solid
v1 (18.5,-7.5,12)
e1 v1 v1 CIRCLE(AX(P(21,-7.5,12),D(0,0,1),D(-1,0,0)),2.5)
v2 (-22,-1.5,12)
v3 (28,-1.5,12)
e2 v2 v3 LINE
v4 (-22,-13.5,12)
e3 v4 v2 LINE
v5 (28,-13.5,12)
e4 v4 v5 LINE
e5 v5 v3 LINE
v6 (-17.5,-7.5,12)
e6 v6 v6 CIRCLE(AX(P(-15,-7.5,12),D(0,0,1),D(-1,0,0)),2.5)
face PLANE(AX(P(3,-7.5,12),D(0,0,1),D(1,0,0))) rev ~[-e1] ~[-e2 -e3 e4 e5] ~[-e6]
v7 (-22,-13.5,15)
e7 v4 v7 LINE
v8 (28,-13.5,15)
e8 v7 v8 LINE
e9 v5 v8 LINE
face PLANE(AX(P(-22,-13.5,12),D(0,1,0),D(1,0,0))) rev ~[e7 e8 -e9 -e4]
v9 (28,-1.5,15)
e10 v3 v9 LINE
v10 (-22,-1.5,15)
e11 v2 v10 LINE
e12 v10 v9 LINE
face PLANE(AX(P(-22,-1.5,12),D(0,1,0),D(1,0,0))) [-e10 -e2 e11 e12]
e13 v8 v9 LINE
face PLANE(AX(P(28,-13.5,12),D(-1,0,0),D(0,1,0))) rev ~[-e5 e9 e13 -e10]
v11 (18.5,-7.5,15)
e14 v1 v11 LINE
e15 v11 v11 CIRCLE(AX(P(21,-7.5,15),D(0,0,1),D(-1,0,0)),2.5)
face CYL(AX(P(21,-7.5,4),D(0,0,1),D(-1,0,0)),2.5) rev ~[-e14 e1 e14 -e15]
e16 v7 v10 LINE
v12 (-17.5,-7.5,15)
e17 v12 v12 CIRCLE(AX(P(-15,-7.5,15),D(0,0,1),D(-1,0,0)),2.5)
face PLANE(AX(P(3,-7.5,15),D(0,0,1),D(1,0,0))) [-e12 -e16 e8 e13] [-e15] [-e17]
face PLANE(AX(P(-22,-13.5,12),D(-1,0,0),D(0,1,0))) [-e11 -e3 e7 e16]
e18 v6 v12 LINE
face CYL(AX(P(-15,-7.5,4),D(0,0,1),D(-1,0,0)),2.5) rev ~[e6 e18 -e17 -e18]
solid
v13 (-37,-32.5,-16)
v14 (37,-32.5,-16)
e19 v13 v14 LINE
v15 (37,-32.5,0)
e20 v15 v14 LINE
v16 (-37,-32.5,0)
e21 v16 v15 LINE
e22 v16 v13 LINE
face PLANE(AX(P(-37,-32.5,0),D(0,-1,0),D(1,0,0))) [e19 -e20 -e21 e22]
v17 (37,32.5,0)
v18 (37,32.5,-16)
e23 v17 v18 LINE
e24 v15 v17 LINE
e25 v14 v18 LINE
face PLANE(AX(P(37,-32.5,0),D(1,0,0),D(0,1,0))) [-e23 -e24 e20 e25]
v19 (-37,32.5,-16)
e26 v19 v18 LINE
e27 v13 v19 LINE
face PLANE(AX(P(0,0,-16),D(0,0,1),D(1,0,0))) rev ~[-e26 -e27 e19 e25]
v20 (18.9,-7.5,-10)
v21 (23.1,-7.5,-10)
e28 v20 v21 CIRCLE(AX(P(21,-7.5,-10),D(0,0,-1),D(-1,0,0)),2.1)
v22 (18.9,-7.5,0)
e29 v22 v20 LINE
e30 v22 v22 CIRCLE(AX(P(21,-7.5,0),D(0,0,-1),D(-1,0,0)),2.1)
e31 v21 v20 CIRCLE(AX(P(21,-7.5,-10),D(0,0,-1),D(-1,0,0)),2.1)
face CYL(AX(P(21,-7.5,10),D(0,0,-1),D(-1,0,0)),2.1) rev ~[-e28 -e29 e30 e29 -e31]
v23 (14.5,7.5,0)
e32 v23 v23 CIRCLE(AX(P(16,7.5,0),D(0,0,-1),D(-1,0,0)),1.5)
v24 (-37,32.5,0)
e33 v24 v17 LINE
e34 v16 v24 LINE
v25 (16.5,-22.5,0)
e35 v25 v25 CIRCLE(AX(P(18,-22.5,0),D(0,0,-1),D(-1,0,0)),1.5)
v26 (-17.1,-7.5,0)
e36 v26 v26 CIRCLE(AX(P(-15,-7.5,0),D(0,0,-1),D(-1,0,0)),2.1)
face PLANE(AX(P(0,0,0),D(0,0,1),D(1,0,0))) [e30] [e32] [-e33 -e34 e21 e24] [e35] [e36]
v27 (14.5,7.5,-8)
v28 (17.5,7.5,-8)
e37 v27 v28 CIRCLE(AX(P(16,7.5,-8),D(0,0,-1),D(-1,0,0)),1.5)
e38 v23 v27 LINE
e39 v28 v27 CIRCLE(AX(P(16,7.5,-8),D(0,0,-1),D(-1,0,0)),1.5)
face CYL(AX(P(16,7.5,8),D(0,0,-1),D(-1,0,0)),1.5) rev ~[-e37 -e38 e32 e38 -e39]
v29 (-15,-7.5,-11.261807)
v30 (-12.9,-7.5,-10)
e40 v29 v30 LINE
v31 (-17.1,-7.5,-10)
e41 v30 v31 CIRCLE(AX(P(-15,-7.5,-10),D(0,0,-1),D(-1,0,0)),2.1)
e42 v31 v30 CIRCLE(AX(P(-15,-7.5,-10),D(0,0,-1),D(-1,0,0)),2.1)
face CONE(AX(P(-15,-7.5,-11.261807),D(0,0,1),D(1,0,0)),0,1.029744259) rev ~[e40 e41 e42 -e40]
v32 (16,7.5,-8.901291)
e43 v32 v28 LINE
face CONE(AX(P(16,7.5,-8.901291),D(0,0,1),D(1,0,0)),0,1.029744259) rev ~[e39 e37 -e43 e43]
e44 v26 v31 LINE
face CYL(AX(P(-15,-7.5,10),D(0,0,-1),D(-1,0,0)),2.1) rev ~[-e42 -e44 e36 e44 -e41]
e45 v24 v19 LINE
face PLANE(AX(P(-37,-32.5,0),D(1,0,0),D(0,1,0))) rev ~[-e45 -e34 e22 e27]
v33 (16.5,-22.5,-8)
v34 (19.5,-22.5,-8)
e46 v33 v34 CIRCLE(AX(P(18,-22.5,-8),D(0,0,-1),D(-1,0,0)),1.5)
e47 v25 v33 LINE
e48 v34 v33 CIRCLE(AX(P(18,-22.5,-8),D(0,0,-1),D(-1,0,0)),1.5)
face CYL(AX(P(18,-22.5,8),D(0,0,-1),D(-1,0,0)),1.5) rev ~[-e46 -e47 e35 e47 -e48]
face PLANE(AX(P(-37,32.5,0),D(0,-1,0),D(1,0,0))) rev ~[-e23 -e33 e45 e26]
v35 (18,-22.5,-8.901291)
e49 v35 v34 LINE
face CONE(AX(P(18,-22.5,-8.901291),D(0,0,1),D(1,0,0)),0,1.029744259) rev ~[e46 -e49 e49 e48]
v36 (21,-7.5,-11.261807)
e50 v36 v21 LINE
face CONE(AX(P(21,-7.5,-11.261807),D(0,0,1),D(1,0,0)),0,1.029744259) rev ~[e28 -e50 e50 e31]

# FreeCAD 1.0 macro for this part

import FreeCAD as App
import Part
import Sketcher

V = App.Vector
Q = App.Units.Quantity


def add_polygon(sketch, points):
    """Adds a closed chain of lines whose ends are joined by coincident constraints."""
    first, n = sketch.GeometryCount, len(points)
    for a, b in zip(points, points[1:] + points[:1]):
        sketch.addGeometry(Part.LineSegment(App.Vector(*a, 0), App.Vector(*b, 0)), False)
    for i in range(n):
        sketch.addConstraint(Sketcher.Constraint("Coincident", first + i, 2, first + (i + 1) % n, 1))

doc = App.newDocument("Part")
params = doc.addObject("Spreadsheet::Sheet", "Params")
for row, (alias, value) in enumerate([
    ("sketch1_width", "74 mm"),
    ("sketch1_height", "65 mm"),
    ("pad1_length", "16 mm"),
    ("sketch2_diameter", "3 mm"),
    ("hole_diameter", "3 mm"),
    ("hole_depth", "8 mm"),
    ("sketch3_diameter", "4.2 mm"),
    ("hole2_diameter", "4.2 mm"),
    ("hole2_depth", "10 mm"),
    ("sketch4_width", "50 mm"),
    ("sketch4_height", "12 mm"),
    ("pad2_length", "3 mm"),
    ("sketch5_diameter", "5 mm"),
    ("hole3_diameter", "5 mm"),
    ("hole3_depth", "8 mm"),
], start=1):
    params.set(f"A{row}", alias)
    params.set(f"B{row}", "=" + value)
    params.setAlias(f"B{row}", alias)

body = doc.addObject("PartDesign::Body", "Body")

# Sketch on XY plane
sketch1 = body.newObject("Sketcher::SketchObject", "Sketch")
sketch1.AttachmentSupport = (doc.getObject("XY_Plane"), [""])
sketch1.MapMode = "FlatFace"
add_polygon(sketch1, [(-37, 32), (-37, -32), (37, -32), (37, 32)])  # lines 0-3
sketch1.addConstraint(Sketcher.Constraint("Vertical", 0))
sketch1.addConstraint(Sketcher.Constraint("Horizontal", 1))
sketch1.addConstraint(Sketcher.Constraint("Vertical", 2))
sketch1.addConstraint(Sketcher.Constraint("Horizontal", 3))
sketch1.addConstraint(Sketcher.Constraint("Symmetric", 0, 2, 2, 2, -1, 1))
sketch1.addConstraint(Sketcher.Constraint("DistanceX", 1, 1, 1, 2, Q("74 mm")))
sketch1.addConstraint(Sketcher.Constraint("DistanceY", 0, 2, 0, 1, Q("65 mm")))
sketch1.setExpression("Constraints[9]", "Params.sketch1_width")
sketch1.setExpression("Constraints[10]", "Params.sketch1_height")
pad1 = body.newObject("PartDesign::Pad", "Pad")
pad1.Profile = sketch1
pad1.setExpression("Length", "Params.pad1_length")
pad1.Reversed = True

# Sketch on XY plane
sketch2 = body.newObject("Sketcher::SketchObject", "Sketch001")
sketch2.AttachmentSupport = (doc.getObject("XY_Plane"), [""])
sketch2.MapMode = "FlatFace"
sketch2.addGeometry(Part.Circle(V(18, -22.5, 0), V(0, 0, 1), 1.5), False)
sketch2.addGeometry(Part.Circle(V(16, 7.5, 0), V(0, 0, 1), 1.5), False)
sketch2.addConstraint(Sketcher.Constraint("Equal", 0, 1))
sketch2.addConstraint(Sketcher.Constraint("Diameter", 0, Q("3 mm")))
sketch2.addConstraint(Sketcher.Constraint("DistanceX", -1, 1, 0, 3, Q("18 mm")))
sketch2.addConstraint(Sketcher.Constraint("DistanceX", -1, 1, 1, 3, Q("16 mm")))
sketch2.addConstraint(Sketcher.Constraint("DistanceY", 0, 3, 1, 3, Q("30 mm")))
sketch2.addConstraint(Sketcher.Constraint("DistanceY", 0, 3, -1, 1, Q("22.5 mm")))
sketch2.setExpression("Constraints[1]", "Params.sketch2_diameter")
doc.recompute()
hole = body.newObject("PartDesign::Hole", "Hole")
hole.Profile = sketch2
hole.ThreadType = "None"
hole.setExpression("Diameter", "Params.hole_diameter")
hole.DepthType = "Dimension"
hole.setExpression("Depth", "Params.hole_depth")
hole.DrillPoint = "Angled"
hole.DrillPointAngle = 118

# Sketch on XY plane
sketch3 = body.newObject("Sketcher::SketchObject", "Sketch002")
sketch3.AttachmentSupport = (doc.getObject("XY_Plane"), [""])
sketch3.MapMode = "FlatFace"
sketch3.addGeometry(Part.Circle(V(21, -7.5, 0), V(0, 0, 1), 2.1), False)
sketch3.addGeometry(Part.Circle(V(-15, -7.5, 0), V(0, 0, 1), 2.1), False)
sketch3.addConstraint(Sketcher.Constraint("Equal", 0, 1))
sketch3.addConstraint(Sketcher.Constraint("Horizontal", 0, 3, 1, 3))
sketch3.addConstraint(Sketcher.Constraint("Diameter", 0, Q("4.2 mm")))
sketch3.addConstraint(Sketcher.Constraint("DistanceX", -1, 1, 0, 3, Q("21 mm")))
sketch3.addConstraint(Sketcher.Constraint("DistanceX", 1, 3, -1, 1, Q("15 mm")))
sketch3.addConstraint(Sketcher.Constraint("DistanceY", 0, 3, -1, 1, Q("7.5 mm")))
sketch3.setExpression("Constraints[2]", "Params.sketch3_diameter")
doc.recompute()
hole2 = body.newObject("PartDesign::Hole", "Hole001")
hole2.Profile = sketch3
hole2.ThreadType = "None"
hole2.setExpression("Diameter", "Params.hole2_diameter")
hole2.DepthType = "Dimension"
hole2.setExpression("Depth", "Params.hole2_depth")
hole2.DrillPoint = "Angled"
hole2.DrillPointAngle = 118
body2 = doc.addObject("PartDesign::Body", "Body001")

# Sketch on XY plane
sketch4 = body2.newObject("Sketcher::SketchObject", "Sketch003")
sketch4.AttachmentSupport = (doc.getObject("XY_Plane001"), [""])
sketch4.MapMode = "FlatFace"
sketch4.AttachmentOffset = App.Placement(V(0, 0, 12), App.Rotation())
add_polygon(sketch4, [(-22, -2), (-22, -14), (28, -14), (28, -2)])  # lines 0-3
sketch4.addConstraint(Sketcher.Constraint("Vertical", 0))
sketch4.addConstraint(Sketcher.Constraint("Horizontal", 1))
sketch4.addConstraint(Sketcher.Constraint("Vertical", 2))
sketch4.addConstraint(Sketcher.Constraint("Horizontal", 3))
sketch4.addConstraint(Sketcher.Constraint("DistanceX", 1, 1, 1, 2, Q("50 mm")))
sketch4.addConstraint(Sketcher.Constraint("DistanceY", 0, 2, 0, 1, Q("12 mm")))
sketch4.addConstraint(Sketcher.Constraint("DistanceX", 0, 2, -1, 1, Q("22 mm")))
sketch4.addConstraint(Sketcher.Constraint("DistanceY", 0, 2, -1, 1, Q("13.5 mm")))
sketch4.setExpression("Constraints[8]", "Params.sketch4_width")
sketch4.setExpression("Constraints[9]", "Params.sketch4_height")
pad2 = body2.newObject("PartDesign::Pad", "Pad001")
pad2.Profile = sketch4
pad2.setExpression("Length", "Params.pad2_length")

# Sketch on XY plane
sketch5 = body2.newObject("Sketcher::SketchObject", "Sketch004")
sketch5.AttachmentSupport = (doc.getObject("XY_Plane001"), [""])
sketch5.MapMode = "FlatFace"
sketch5.AttachmentOffset = App.Placement(V(0, 0, 12), App.Rotation())
sketch5.addGeometry(Part.Circle(V(-15, -7.5, 0), V(0, 0, 1), 2.5), False)
sketch5.addGeometry(Part.Circle(V(21, -7.5, 0), V(0, 0, 1), 2.5), False)
sketch5.addConstraint(Sketcher.Constraint("Equal", 0, 1))
sketch5.addConstraint(Sketcher.Constraint("Horizontal", 0, 3, 1, 3))
sketch5.addConstraint(Sketcher.Constraint("Diameter", 0, Q("5 mm")))
sketch5.addConstraint(Sketcher.Constraint("DistanceX", 0, 3, -1, 1, Q("15 mm")))
sketch5.addConstraint(Sketcher.Constraint("DistanceX", -1, 1, 1, 3, Q("21 mm")))
sketch5.addConstraint(Sketcher.Constraint("DistanceY", 0, 3, -1, 1, Q("7.5 mm")))
sketch5.setExpression("Constraints[2]", "Params.sketch5_diameter")
doc.recompute()
hole3 = body2.newObject("PartDesign::Hole", "Hole002")
hole3.Profile = sketch5
hole3.ThreadType = "None"
hole3.setExpression("Diameter", "Params.hole3_diameter")
hole3.DepthType = "Dimension"
hole3.setExpression("Depth", "Params.hole3_depth")
hole3.DrillPoint = "Angled"
hole3.DrillPointAngle = 118
hole3.Reversed = True

doc.recompute()
